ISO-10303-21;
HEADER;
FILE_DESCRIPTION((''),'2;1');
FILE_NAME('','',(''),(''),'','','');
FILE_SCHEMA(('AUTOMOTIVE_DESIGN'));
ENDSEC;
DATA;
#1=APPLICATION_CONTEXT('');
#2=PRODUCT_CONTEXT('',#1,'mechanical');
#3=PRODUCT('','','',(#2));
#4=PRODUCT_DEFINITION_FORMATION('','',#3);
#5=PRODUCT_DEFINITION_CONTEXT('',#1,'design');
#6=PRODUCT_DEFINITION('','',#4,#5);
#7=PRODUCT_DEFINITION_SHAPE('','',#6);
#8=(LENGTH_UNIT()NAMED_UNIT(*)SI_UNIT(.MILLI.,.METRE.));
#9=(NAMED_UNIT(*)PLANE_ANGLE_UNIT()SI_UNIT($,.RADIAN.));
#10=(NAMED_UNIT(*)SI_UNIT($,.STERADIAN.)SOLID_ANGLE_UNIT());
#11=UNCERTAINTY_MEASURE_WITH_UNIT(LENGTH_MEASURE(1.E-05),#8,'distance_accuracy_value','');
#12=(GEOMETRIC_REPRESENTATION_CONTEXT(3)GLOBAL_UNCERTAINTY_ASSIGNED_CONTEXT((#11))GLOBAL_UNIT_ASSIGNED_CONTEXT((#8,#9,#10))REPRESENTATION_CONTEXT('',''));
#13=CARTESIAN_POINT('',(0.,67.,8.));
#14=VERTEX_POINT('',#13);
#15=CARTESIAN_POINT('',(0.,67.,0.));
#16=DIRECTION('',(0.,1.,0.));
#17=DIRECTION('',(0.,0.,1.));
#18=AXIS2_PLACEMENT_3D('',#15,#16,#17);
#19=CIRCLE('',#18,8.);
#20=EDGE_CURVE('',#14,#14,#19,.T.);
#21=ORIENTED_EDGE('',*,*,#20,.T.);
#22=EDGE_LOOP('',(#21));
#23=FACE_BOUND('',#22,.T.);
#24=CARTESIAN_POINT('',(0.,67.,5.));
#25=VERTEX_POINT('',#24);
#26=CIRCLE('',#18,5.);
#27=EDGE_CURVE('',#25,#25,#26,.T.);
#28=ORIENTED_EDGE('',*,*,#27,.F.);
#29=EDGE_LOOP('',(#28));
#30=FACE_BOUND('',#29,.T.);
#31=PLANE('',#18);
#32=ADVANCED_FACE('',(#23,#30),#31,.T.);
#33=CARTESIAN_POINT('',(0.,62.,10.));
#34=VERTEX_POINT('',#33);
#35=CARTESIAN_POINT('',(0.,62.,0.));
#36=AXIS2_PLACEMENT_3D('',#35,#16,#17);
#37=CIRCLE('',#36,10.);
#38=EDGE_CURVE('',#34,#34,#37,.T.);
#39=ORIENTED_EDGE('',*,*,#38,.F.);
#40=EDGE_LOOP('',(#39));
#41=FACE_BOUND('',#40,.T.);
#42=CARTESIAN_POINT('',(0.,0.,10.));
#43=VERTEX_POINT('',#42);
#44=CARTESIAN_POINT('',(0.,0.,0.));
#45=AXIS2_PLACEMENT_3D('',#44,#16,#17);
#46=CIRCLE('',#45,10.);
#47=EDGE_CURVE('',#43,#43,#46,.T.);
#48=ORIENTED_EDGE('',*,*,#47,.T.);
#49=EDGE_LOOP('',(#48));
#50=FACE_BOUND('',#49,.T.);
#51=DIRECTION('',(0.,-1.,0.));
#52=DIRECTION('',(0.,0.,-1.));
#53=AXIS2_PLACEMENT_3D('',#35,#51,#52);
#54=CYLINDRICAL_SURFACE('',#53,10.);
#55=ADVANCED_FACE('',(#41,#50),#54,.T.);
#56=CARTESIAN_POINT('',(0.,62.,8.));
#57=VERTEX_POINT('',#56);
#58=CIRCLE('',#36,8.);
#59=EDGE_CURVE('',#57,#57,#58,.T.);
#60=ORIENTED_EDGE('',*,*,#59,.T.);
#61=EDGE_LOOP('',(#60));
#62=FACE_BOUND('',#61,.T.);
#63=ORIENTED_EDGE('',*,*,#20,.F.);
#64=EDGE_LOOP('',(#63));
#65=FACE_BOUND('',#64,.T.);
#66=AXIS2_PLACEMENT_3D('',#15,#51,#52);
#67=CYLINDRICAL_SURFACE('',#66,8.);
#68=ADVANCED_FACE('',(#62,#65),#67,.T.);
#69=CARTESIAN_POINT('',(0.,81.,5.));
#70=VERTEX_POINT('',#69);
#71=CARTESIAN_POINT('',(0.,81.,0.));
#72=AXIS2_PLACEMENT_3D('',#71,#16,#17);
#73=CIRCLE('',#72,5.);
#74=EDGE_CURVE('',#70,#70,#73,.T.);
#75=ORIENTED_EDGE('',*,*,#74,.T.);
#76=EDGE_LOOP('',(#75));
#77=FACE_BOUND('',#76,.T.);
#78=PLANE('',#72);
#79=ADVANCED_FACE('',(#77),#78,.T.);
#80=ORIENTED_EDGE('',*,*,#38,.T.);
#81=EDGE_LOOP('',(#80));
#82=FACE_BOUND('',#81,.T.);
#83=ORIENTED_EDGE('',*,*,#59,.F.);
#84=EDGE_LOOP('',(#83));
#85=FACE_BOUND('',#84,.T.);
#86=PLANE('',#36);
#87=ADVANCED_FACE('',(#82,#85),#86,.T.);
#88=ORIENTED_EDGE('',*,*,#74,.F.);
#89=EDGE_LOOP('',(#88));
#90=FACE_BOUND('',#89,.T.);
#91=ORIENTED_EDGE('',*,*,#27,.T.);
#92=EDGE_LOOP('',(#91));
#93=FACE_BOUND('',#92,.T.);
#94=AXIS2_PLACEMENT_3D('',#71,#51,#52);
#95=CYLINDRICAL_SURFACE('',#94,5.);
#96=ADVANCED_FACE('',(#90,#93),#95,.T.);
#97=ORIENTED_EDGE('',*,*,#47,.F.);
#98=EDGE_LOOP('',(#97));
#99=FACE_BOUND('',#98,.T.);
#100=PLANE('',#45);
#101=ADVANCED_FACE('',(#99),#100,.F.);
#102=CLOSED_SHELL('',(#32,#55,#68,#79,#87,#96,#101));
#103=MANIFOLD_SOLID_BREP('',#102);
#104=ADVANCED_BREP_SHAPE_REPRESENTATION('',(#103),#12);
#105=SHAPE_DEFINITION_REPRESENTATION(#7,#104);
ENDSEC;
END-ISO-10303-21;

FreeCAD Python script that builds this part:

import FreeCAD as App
import Part
import Sketcher
from FreeCAD import Vector

doc = App.newDocument("Part")
body = doc.addObject("PartDesign::Body", "Body")

# Sketch on XZ plane
sketch1 = doc.addObject("Sketcher::SketchObject", "Sketch")
body.addObject(sketch1)
sketch1.AttachmentSupport = (doc.XZ_Plane, [""])
sketch1.MapMode = "FlatFace"
sketch1.addGeometry(Part.Circle(Vector(0, 0, 0), Vector(0, 0, 1), 10), False)
sketch1.addConstraint([
    Sketcher.Constraint("Coincident", 0, 3, -1, 1),
    Sketcher.Constraint("Diameter", 0, 20.0),
])
pad1 = doc.addObject("PartDesign::Pad", "Pad")
body.addObject(pad1)
pad1.Profile = sketch1
pad1.Length = 62
pad1.Reversed = True

# Sketch on XZ plane
sketch2 = doc.addObject("Sketcher::SketchObject", "Sketch001")
body.addObject(sketch2)
sketch2.AttachmentSupport = (doc.XZ_Plane, [""])
sketch2.MapMode = "FlatFace"
sketch2.AttachmentOffset = App.Placement(Vector(0, 0, -62), App.Rotation())
sketch2.addGeometry(Part.Circle(Vector(0, 0, 0), Vector(0, 0, 1), 8), False)
sketch2.addConstraint([
    Sketcher.Constraint("Coincident", 0, 3, -1, 1),
    Sketcher.Constraint("Diameter", 0, 16.0),
])
pad2 = doc.addObject("PartDesign::Pad", "Pad001")
body.addObject(pad2)
pad2.Profile = sketch2
pad2.Length = 5
pad2.Reversed = True

# Sketch on XZ plane
sketch3 = doc.addObject("Sketcher::SketchObject", "Sketch002")
body.addObject(sketch3)
sketch3.AttachmentSupport = (doc.XZ_Plane, [""])
sketch3.MapMode = "FlatFace"
sketch3.AttachmentOffset = App.Placement(Vector(0, 0, -67), App.Rotation())
sketch3.addGeometry(Part.Circle(Vector(0, 0, 0), Vector(0, 0, 1), 5), False)
sketch3.addConstraint([
    Sketcher.Constraint("Coincident", 0, 3, -1, 1),
    Sketcher.Constraint("Diameter", 0, 10.0),
])
pad3 = doc.addObject("PartDesign::Pad", "Pad002")
body.addObject(pad3)
pad3.Profile = sketch3
pad3.Length = 14
pad3.Reversed = True

doc.recompute()
